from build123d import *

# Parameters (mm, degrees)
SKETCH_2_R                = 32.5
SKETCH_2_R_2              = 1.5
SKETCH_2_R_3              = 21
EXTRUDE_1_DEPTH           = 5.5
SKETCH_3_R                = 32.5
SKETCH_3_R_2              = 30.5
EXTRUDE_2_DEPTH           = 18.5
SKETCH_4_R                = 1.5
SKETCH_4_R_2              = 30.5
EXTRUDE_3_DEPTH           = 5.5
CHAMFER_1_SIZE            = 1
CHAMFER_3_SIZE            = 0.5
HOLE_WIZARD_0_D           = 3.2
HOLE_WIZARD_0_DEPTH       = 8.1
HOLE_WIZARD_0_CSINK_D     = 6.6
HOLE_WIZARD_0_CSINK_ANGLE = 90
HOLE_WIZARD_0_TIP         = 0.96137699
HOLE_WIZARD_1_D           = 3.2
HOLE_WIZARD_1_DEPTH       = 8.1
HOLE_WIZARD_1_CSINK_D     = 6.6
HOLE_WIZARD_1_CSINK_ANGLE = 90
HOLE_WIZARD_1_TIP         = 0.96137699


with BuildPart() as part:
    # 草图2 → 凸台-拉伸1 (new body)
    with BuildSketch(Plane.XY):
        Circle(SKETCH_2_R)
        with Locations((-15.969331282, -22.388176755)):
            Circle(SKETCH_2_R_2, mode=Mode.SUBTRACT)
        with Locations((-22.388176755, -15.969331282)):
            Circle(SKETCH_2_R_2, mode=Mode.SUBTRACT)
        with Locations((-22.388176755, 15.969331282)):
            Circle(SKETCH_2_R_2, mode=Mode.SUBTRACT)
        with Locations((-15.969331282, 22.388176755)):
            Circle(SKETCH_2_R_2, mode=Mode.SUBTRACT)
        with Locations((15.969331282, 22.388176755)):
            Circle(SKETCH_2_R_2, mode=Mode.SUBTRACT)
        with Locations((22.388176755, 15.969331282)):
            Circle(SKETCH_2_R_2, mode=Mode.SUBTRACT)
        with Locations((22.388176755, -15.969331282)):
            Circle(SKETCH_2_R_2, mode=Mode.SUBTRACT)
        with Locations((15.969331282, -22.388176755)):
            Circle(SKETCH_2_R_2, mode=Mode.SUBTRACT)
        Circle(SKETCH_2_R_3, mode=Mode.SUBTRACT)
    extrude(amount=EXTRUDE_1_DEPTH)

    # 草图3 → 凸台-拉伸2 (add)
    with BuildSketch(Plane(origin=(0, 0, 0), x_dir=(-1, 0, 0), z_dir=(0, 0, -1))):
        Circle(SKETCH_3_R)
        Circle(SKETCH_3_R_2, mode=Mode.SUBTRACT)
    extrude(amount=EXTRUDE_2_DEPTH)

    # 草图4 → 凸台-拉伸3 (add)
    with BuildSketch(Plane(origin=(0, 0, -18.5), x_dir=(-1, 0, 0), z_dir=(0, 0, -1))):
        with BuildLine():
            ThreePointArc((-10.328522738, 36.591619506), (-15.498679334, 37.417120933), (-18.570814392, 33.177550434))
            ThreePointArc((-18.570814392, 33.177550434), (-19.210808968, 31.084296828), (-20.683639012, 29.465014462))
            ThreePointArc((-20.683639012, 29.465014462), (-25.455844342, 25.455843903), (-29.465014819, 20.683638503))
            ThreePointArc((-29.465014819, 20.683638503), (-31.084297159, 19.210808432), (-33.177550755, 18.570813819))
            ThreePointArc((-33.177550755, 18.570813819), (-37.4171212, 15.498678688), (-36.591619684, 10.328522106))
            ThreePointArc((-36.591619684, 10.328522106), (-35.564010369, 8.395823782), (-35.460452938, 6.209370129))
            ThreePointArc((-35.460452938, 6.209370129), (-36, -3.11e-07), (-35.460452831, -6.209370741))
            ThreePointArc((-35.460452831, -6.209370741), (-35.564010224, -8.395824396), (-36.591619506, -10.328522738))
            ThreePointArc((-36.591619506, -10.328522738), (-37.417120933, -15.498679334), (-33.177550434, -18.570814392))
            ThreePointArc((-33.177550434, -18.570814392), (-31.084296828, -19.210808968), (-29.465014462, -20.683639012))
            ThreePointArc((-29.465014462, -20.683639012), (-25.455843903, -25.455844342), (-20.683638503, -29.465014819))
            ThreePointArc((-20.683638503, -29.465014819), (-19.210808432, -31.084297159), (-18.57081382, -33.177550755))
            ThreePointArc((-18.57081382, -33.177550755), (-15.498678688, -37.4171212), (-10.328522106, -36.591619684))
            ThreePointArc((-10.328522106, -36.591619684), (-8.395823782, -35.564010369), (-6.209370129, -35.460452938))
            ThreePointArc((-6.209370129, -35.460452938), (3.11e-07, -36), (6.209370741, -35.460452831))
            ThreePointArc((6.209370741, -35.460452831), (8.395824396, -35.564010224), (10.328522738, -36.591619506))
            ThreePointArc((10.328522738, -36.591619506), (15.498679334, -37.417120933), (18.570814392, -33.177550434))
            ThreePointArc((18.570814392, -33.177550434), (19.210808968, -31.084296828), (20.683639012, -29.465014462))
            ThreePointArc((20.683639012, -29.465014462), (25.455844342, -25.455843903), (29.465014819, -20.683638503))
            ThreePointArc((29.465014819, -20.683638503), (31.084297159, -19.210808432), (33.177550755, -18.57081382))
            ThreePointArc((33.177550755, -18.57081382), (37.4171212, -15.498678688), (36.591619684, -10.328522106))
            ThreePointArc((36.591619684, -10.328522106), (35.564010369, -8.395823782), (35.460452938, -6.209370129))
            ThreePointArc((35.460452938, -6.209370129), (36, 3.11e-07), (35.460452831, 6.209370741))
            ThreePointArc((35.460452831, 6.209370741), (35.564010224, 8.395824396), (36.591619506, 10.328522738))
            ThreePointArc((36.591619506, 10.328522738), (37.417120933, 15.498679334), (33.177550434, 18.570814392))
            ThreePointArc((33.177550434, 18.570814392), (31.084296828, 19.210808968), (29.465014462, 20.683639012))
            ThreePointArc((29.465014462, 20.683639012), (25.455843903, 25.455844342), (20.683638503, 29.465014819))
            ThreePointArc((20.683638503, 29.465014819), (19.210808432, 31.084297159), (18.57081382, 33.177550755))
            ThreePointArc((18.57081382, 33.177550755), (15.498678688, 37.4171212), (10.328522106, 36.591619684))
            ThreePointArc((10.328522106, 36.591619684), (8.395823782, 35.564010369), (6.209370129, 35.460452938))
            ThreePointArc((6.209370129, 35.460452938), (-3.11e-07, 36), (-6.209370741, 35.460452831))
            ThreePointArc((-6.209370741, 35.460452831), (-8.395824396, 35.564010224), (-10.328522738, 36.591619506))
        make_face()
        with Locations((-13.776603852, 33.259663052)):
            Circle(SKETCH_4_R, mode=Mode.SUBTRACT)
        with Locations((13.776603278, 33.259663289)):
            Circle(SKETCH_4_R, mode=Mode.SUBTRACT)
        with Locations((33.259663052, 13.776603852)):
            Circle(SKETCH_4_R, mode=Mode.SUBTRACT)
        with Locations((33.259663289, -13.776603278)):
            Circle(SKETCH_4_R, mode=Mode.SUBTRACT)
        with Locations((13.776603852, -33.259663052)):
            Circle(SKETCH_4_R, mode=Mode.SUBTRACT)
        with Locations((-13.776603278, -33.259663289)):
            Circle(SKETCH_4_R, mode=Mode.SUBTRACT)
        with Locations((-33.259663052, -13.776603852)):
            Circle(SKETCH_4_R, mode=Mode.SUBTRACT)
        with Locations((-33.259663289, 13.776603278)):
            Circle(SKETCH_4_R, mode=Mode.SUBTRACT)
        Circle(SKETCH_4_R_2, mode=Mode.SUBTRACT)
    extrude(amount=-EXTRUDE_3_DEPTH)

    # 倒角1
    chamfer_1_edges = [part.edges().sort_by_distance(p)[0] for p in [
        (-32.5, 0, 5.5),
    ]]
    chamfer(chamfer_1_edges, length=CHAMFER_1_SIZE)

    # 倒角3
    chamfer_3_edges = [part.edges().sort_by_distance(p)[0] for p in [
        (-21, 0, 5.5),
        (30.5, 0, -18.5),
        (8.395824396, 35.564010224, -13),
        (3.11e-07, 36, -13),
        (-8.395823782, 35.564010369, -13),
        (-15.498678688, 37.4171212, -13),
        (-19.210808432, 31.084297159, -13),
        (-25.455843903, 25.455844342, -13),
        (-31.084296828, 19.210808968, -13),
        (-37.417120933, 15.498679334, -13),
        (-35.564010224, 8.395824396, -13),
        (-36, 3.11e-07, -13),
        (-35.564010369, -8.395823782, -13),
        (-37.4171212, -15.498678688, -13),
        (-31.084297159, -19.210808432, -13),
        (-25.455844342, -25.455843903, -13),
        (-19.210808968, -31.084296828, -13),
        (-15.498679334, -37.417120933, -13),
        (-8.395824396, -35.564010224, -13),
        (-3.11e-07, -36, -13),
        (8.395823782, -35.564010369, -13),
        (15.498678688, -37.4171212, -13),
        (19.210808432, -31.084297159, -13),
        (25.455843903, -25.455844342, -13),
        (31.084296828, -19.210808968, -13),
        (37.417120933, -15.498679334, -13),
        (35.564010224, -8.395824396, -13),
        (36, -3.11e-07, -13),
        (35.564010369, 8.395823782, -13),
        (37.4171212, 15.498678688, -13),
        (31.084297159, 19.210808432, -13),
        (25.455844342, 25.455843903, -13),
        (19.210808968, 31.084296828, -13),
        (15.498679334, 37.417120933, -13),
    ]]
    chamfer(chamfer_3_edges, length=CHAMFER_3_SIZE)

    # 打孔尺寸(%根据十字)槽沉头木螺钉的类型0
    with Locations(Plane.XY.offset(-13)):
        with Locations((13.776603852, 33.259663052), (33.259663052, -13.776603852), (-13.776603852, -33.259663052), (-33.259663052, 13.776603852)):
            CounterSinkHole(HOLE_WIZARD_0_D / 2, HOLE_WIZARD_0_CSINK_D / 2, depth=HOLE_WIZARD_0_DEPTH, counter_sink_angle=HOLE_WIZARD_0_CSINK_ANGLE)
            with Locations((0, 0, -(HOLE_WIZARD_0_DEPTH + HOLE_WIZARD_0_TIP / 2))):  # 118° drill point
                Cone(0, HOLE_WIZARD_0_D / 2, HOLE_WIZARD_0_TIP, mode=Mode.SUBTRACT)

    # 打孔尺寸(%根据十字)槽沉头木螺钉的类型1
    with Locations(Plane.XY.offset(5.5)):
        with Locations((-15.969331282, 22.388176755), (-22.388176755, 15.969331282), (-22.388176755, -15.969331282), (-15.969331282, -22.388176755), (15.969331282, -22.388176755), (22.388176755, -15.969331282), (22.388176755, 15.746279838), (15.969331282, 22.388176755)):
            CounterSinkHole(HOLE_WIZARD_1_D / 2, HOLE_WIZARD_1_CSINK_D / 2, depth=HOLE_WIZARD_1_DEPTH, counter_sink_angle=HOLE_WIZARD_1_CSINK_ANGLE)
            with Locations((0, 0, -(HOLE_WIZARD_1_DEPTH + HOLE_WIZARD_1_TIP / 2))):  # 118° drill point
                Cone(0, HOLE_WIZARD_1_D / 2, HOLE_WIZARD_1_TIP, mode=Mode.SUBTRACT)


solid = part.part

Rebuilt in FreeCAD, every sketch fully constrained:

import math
import FreeCAD as App
import Part
import Sketcher
from FreeCAD import Vector


def edges_at(feature, points):
    """Names of the edges that pass closest to the given points."""
    edges = feature.Shape.Edges
    near = lambda p: min(range(len(edges)), key=lambda i: edges[i].distToShape(Part.Vertex(*p))[0])
    return sorted({f"Edge{near(p) + 1}" for p in points})

doc = App.newDocument("Part")
body = doc.addObject("PartDesign::Body", "Body")

sketch1 = doc.addObject("Sketcher::SketchObject", "Sketch")
body.addObject(sketch1)
sketch1.AttachmentSupport = (doc.XY_Plane, [""])
sketch1.MapMode = "FlatFace"
sketch1.addGeometry([
    Part.Circle(Vector(0, 0, 0), Vector(0, 0, 1), 32.5),
    Part.Circle(Vector(-16, -22.4, 0), Vector(0, 0, 1), 1.5),
    Part.Circle(Vector(-22.4, -16, 0), Vector(0, 0, 1), 1.5),
    Part.Circle(Vector(0, 0, 0), Vector(0, 0, 1), 21),
    Part.Circle(Vector(16, -22.4, 0), Vector(0, 0, 1), 1.5),
    Part.Circle(Vector(22.4, -16, 0), Vector(0, 0, 1), 1.5),
    Part.Circle(Vector(-22.4, 16, 0), Vector(0, 0, 1), 1.5),
    Part.Circle(Vector(-16, 22.4, 0), Vector(0, 0, 1), 1.5),
    Part.Circle(Vector(22.4, 16, 0), Vector(0, 0, 1), 1.5),
    Part.Circle(Vector(16, 22.4, 0), Vector(0, 0, 1), 1.5),
], False)
sketch1.addConstraint([
    Sketcher.Constraint("Coincident", 0, 3, -1, 1),
    Sketcher.Constraint("Coincident", 3, 3, -1, 1),
    Sketcher.Constraint("Equal", 1, 2),
    Sketcher.Constraint("Equal", 2, 4),
    Sketcher.Constraint("Equal", 4, 5),
    Sketcher.Constraint("Equal", 5, 6),
    Sketcher.Constraint("Equal", 6, 7),
    Sketcher.Constraint("Equal", 7, 8),
    Sketcher.Constraint("Equal", 8, 9),
    Sketcher.Constraint("Symmetric", 5, 3, 6, 3, -1, 1),
    Sketcher.Constraint("Symmetric", 4, 3, 7, 3, -1, 1),
    Sketcher.Constraint("Symmetric", 2, 3, 8, 3, -1, 1),
    Sketcher.Constraint("Symmetric", 1, 3, 9, 3, -1, 1),
    Sketcher.Constraint("Symmetric", 1, 3, 4, 3, -2),
    Sketcher.Constraint("Symmetric", 2, 3, 5, 3, -2),
    Sketcher.Constraint("Diameter", 0, 65.0),
    Sketcher.Constraint("Diameter", 1, 3.0),
    Sketcher.Constraint("Diameter", 3, 42.0),
    Sketcher.Constraint("DistanceX", 1, 3, -1, 1, 15.969331),
    Sketcher.Constraint("DistanceY", 2, 3, -1, 1, 15.969331),
    Sketcher.Constraint("DistanceX", 2, 3, 4, 3, 38.357508),
    Sketcher.Constraint("DistanceY", 1, 3, 6, 3, 38.357508),
])
pad1 = doc.addObject("PartDesign::Pad", "Pad")
body.addObject(pad1)
pad1.Profile = sketch1
pad1.Length = 5.5

sketch2 = doc.addObject("Sketcher::SketchObject", "Sketch001")
body.addObject(sketch2)
sketch2.AttachmentSupport = (doc.XY_Plane, [""])
sketch2.MapMode = "FlatFace"
sketch2.addGeometry([
    Part.Circle(Vector(0, 0, 0), Vector(0, 0, 1), 32),
    Part.Circle(Vector(0, 0, 0), Vector(0, 0, 1), 30),
], False)
sketch2.addConstraint([
    Sketcher.Constraint("Coincident", 0, 3, -1, 1),
    Sketcher.Constraint("Coincident", 1, 3, -1, 1),
    Sketcher.Constraint("Diameter", 0, 65.0),
    Sketcher.Constraint("Diameter", 1, 61.0),
])
pad2 = doc.addObject("PartDesign::Pad", "Pad001")
body.addObject(pad2)
pad2.Profile = sketch2
pad2.Length = 18.5
pad2.Reversed = True

sketch3 = doc.addObject("Sketcher::SketchObject", "Sketch002")
body.addObject(sketch3)
sketch3.AttachmentSupport = (doc.XY_Plane, [""])
sketch3.MapMode = "FlatFace"
sketch3.AttachmentOffset = App.Placement(Vector(0, 0, -18.5), App.Rotation())
sketch3.addGeometry([
    Part.ArcOfCircle(Part.Circle(Vector(13.6, 32.8, 0), Vector(0, 0, 1), 5), math.radians(4), math.radians(131)),
    Part.ArcOfCircle(Part.Circle(Vector(23.6, 33.6, 0), Vector(0, 0, 1), 5), math.radians(-176), math.radians(-125)),
    Part.ArcOfCircle(Part.Circle(Vector(0, 0, 0), Vector(0, 0, 1), 36), math.radians(35.07), math.radians(54.93)),
    Part.ArcOfCircle(Part.Circle(Vector(33.6, 23.6, 0), Vector(0, 0, 1), 5), math.radians(-145), math.radians(-94)),
    Part.ArcOfCircle(Part.Circle(Vector(32.8, 13.6, 0), Vector(0, 0, 1), 5), math.radians(-41), math.radians(86)),
    Part.ArcOfCircle(Part.Circle(Vector(40.4, 7.1, 0), Vector(0, 0, 1), 5), math.radians(139), math.radians(190)),
    Part.ArcOfCircle(Part.Circle(Vector(0, 0, 0), Vector(0, 0, 1), 36), math.radians(-9.93), math.radians(9.93)),
    Part.ArcOfCircle(Part.Circle(Vector(40.4, -7.1, 0), Vector(0, 0, 1), 5), math.radians(170), math.radians(221)),
    Part.ArcOfCircle(Part.Circle(Vector(32.8, -13.6, 0), Vector(0, 0, 1), 5), math.radians(-86), math.radians(41)),
    Part.ArcOfCircle(Part.Circle(Vector(33.6, -23.6, 0), Vector(0, 0, 1), 5), math.radians(94), math.radians(145)),
    Part.ArcOfCircle(Part.Circle(Vector(0, 0, 0), Vector(0, 0, 1), 36), math.radians(-54.93), math.radians(-35.07)),
    Part.ArcOfCircle(Part.Circle(Vector(23.6, -33.6, 0), Vector(0, 0, 1), 5), math.radians(125), math.radians(176)),
    Part.ArcOfCircle(Part.Circle(Vector(13.6, -32.8, 0), Vector(0, 0, 1), 5), math.radians(-131), math.radians(-4)),
    Part.ArcOfCircle(Part.Circle(Vector(7.1, -40.4, 0), Vector(0, 0, 1), 5), math.radians(49), math.radians(100)),
    Part.ArcOfCircle(Part.Circle(Vector(0, 0, 0), Vector(0, 0, 1), 36), math.radians(-99.93), math.radians(-80.07)),
    Part.ArcOfCircle(Part.Circle(Vector(-7.1, -40.4, 0), Vector(0, 0, 1), 5), math.radians(80), math.radians(131)),
    Part.ArcOfCircle(Part.Circle(Vector(-13.6, -32.8, 0), Vector(0, 0, 1), 5), math.radians(-176), math.radians(-49)),
    Part.ArcOfCircle(Part.Circle(Vector(-23.6, -33.6, 0), Vector(0, 0, 1), 5), math.radians(4), math.radians(55)),
    Part.ArcOfCircle(Part.Circle(Vector(0, 0, 0), Vector(0, 0, 1), 36), math.radians(-144.93), math.radians(-125.07)),
    Part.ArcOfCircle(Part.Circle(Vector(-33.6, -23.6, 0), Vector(0, 0, 1), 5), math.radians(35), math.radians(86)),
    Part.ArcOfCircle(Part.Circle(Vector(-32.8, -13.6, 0), Vector(0, 0, 1), 5), math.radians(139), math.radians(266)),
    Part.ArcOfCircle(Part.Circle(Vector(-40.4, -7.1, 0), Vector(0, 0, 1), 5), math.radians(-41), math.radians(10)),
    Part.ArcOfCircle(Part.Circle(Vector(0, 0, 0), Vector(0, 0, 1), 36), math.radians(170.07), math.radians(189.93)),
    Part.ArcOfCircle(Part.Circle(Vector(-40.4, 7.1, 0), Vector(0, 0, 1), 5), math.radians(-10), math.radians(41)),
    Part.ArcOfCircle(Part.Circle(Vector(-32.8, 13.6, 0), Vector(0, 0, 1), 5), math.radians(94), math.radians(221)),
    Part.ArcOfCircle(Part.Circle(Vector(-33.6, 23.6, 0), Vector(0, 0, 1), 5), math.radians(-86), math.radians(-35)),
    Part.ArcOfCircle(Part.Circle(Vector(0, 0, 0), Vector(0, 0, 1), 36), math.radians(125.07), math.radians(144.93)),
    Part.ArcOfCircle(Part.Circle(Vector(-23.6, 33.6, 0), Vector(0, 0, 1), 5), math.radians(-55), math.radians(-4)),
    Part.ArcOfCircle(Part.Circle(Vector(-13.6, 32.8, 0), Vector(0, 0, 1), 5), math.radians(49), math.radians(176)),
    Part.ArcOfCircle(Part.Circle(Vector(-7.1, 40.4, 0), Vector(0, 0, 1), 5), math.radians(-131), math.radians(-80)),
    Part.ArcOfCircle(Part.Circle(Vector(0, 0, 0), Vector(0, 0, 1), 36), math.radians(80.07), math.radians(99.93)),
    Part.ArcOfCircle(Part.Circle(Vector(7.1, 40.4, 0), Vector(0, 0, 1), 5), math.radians(-100), math.radians(-49)),
    Part.Circle(Vector(13.8, -33.3, 0), Vector(0, 0, 1), 1.5),
    Part.Circle(Vector(33.3, -13.8, 0), Vector(0, 0, 1), 1.5),
    Part.Circle(Vector(-13.8, -33.3, 0), Vector(0, 0, 1), 1.5),
    Part.Circle(Vector(-33.3, -13.8, 0), Vector(0, 0, 1), 1.5),
    Part.Circle(Vector(33.3, 13.8, 0), Vector(0, 0, 1), 1.5),
    Part.Circle(Vector(13.8, 33.3, 0), Vector(0, 0, 1), 1.5),
    Part.Circle(Vector(0, 0, 0), Vector(0, 0, 1), 30.5),
    Part.Circle(Vector(-33.3, 13.8, 0), Vector(0, 0, 1), 1.5),
    Part.Circle(Vector(-13.8, 33.3, 0), Vector(0, 0, 1), 1.5),
], False)
sketch3.addConstraint([
    Sketcher.Constraint("Tangent", 0, 1, 1, 1),
    Sketcher.Constraint("Tangent", 1, 2, 2, 2),
    Sketcher.Constraint("Tangent", 2, 1, 3, 1),
    Sketcher.Constraint("Tangent", 3, 2, 4, 2),
    Sketcher.Constraint("Tangent", 4, 1, 5, 1),
    Sketcher.Constraint("Tangent", 5, 2, 6, 2),
    Sketcher.Constraint("Tangent", 6, 1, 7, 1),
    Sketcher.Constraint("Tangent", 7, 2, 8, 2),
    Sketcher.Constraint("Tangent", 8, 1, 9, 1),
    Sketcher.Constraint("Tangent", 9, 2, 10, 2),
    Sketcher.Constraint("Tangent", 10, 1, 11, 1),
    Sketcher.Constraint("Tangent", 11, 2, 12, 2),
    Sketcher.Constraint("Tangent", 12, 1, 13, 1),
    Sketcher.Constraint("Tangent", 13, 2, 14, 2),
    Sketcher.Constraint("Tangent", 14, 1, 15, 1),
    Sketcher.Constraint("Tangent", 15, 2, 16, 2),
    Sketcher.Constraint("Tangent", 16, 1, 17, 1),
    Sketcher.Constraint("Tangent", 17, 2, 18, 2),
    Sketcher.Constraint("Tangent", 18, 1, 19, 1),
    Sketcher.Constraint("Tangent", 19, 2, 20, 2),
    Sketcher.Constraint("Tangent", 20, 1, 21, 1),
    Sketcher.Constraint("Tangent", 21, 2, 22, 2),
    Sketcher.Constraint("Tangent", 22, 1, 23, 1),
    Sketcher.Constraint("Tangent", 23, 2, 24, 2),
    Sketcher.Constraint("Tangent", 24, 1, 25, 1),
    Sketcher.Constraint("Tangent", 25, 2, 26, 2),
    Sketcher.Constraint("Tangent", 26, 1, 27, 1),
    Sketcher.Constraint("Tangent", 27, 2, 28, 2),
    Sketcher.Constraint("Tangent", 28, 1, 29, 1),
    Sketcher.Constraint("Tangent", 29, 2, 30, 2),
    Sketcher.Constraint("Tangent", 30, 1, 31, 1),
    Sketcher.Constraint("Tangent", 31, 2, 0, 2),
    Sketcher.Constraint("Coincident", 2, 3, -1, 1),
    Sketcher.Constraint("Coincident", 6, 3, -1, 1),
    Sketcher.Constraint("Coincident", 10, 3, -1, 1),
    Sketcher.Constraint("Coincident", 14, 3, -1, 1),
    Sketcher.Constraint("Coincident", 18, 3, -1, 1),
    Sketcher.Constraint("Coincident", 22, 3, -1, 1),
    Sketcher.Constraint("Coincident", 26, 3, -1, 1),
    Sketcher.Constraint("Coincident", 30, 3, -1, 1),
    Sketcher.Constraint("Coincident", 38, 3, -1, 1),
    Sketcher.Constraint("Equal", 0, 1),
    Sketcher.Constraint("Equal", 1, 3),
    Sketcher.Constraint("Equal", 3, 4),
    Sketcher.Constraint("Equal", 4, 5),
    Sketcher.Constraint("Equal", 2, 6),
    Sketcher.Constraint("Equal", 5, 7),
    Sketcher.Constraint("Equal", 7, 8),
    Sketcher.Constraint("Equal", 8, 9),
    Sketcher.Constraint("Equal", 6, 10),
    Sketcher.Constraint("Equal", 9, 11),
    Sketcher.Constraint("Equal", 11, 12),
    Sketcher.Constraint("Equal", 12, 13),
    Sketcher.Constraint("Equal", 10, 14),
    Sketcher.Constraint("Equal", 13, 15),
    Sketcher.Constraint("Equal", 15, 16),
    Sketcher.Constraint("Equal", 16, 17),
    Sketcher.Constraint("Equal", 14, 18),
    Sketcher.Constraint("Equal", 17, 19),
    Sketcher.Constraint("Equal", 19, 20),
    Sketcher.Constraint("Equal", 20, 21),
    Sketcher.Constraint("Equal", 18, 22),
    Sketcher.Constraint("Equal", 21, 23),
    Sketcher.Constraint("Equal", 23, 24),
    Sketcher.Constraint("Equal", 24, 25),
    Sketcher.Constraint("Equal", 22, 26),
    Sketcher.Constraint("Equal", 25, 27),
    Sketcher.Constraint("Equal", 27, 28),
    Sketcher.Constraint("Equal", 28, 29),
    Sketcher.Constraint("Equal", 26, 30),
    Sketcher.Constraint("Equal", 29, 31),
    Sketcher.Constraint("Equal", 32, 33),
    Sketcher.Constraint("Equal", 33, 34),
    Sketcher.Constraint("Equal", 34, 35),
    Sketcher.Constraint("Equal", 35, 36),
    Sketcher.Constraint("Equal", 36, 37),
    Sketcher.Constraint("Equal", 37, 39),
    Sketcher.Constraint("Equal", 39, 40),
    Sketcher.Constraint("Symmetric", 0, 3, 16, 3, -1, 1),
    Sketcher.Constraint("Symmetric", 4, 3, 20, 3, -1, 1),
    Sketcher.Constraint("Symmetric", 8, 3, 24, 3, -1, 1),
    Sketcher.Constraint("Symmetric", 12, 3, 28, 3, -1, 1),
    Sketcher.Constraint("Symmetric", 35, 3, 36, 3, -1, 1),
    Sketcher.Constraint("Symmetric", 34, 3, 37, 3, -1, 1),
    Sketcher.Constraint("Symmetric", 33, 3, 39, 3, -1, 1),
    Sketcher.Constraint("Symmetric", 32, 3, 40, 3, -1, 1),
    Sketcher.Constraint("Symmetric", 12, 3, 16, 3, -2),
    Sketcher.Constraint("Symmetric", 8, 3, 20, 3, -2),
    Sketcher.Constraint("Symmetric", 32, 3, 34, 3, -2),
    Sketcher.Constraint("Symmetric", 33, 3, 35, 3, -2),
    Sketcher.Constraint("Diameter", 32, 3.0),
    Sketcher.Constraint("Diameter", 38, 61.0),
    Sketcher.Constraint("Radius", 0, 5.0),
    Sketcher.Constraint("Radius", 2, 36.0),
    Sketcher.Constraint("DistanceY", -1, 1, 4, 3, 13.585262),
    Sketcher.Constraint("DistanceX", -1, 1, 12, 3, 13.585262),
    Sketcher.Constraint("DistanceY", -1, 1, 0, 1, 33.17755),
    Sketcher.Constraint("DistanceX", -1, 1, 3, 2, 33.177551),
    Sketcher.Constraint("DistanceX", -1, 1, 32, 3, 13.776603),
    Sketcher.Constraint("DistanceY", 32, 3, -1, 1, 33.259663),
    Sketcher.Constraint("DistanceX", -1, 1, 33, 3, 33.259663),
    Sketcher.Constraint("DistanceY", 33, 3, -1, 1, 13.776604),
])
pad3 = doc.addObject("PartDesign::Pad", "Pad002")
body.addObject(pad3)
pad3.Profile = sketch3
pad3.Length = 5.5
doc.recompute()

chamfer = doc.addObject("PartDesign::Chamfer", "Chamfer")
body.addObject(chamfer)
chamfer.Base = (pad3, edges_at(pad3, [(-32.5, 0, 5.5)]))
chamfer.Size = 1
doc.recompute()

chamfer2 = doc.addObject("PartDesign::Chamfer", "Chamfer001")
body.addObject(chamfer2)
chamfer2.Base = (chamfer, edges_at(chamfer, [
    (-21, 0, 5.5),
    (30.5, 0, -18.5),
    (8.396, 35.564, -13),
    (0, 36, -13),
    (-8.396, 35.564, -13),
    (-15.499, 37.417, -13),
    (-19.211, 31.084, -13),
    (-25.456, 25.456, -13),
    (-31.084, 19.211, -13),
    (-37.417, 15.499, -13),
    (-35.564, 8.396, -13),
    (-36, 0, -13),
    (-35.564, -8.396, -13),
    (-37.417, -15.499, -13),
    (-31.084, -19.211, -13),
    (-25.456, -25.456, -13),
    (-19.211, -31.084, -13),
    (-15.499, -37.417, -13),
    (-8.396, -35.564, -13),
    (0, -36, -13),
    (8.396, -35.564, -13),
    (15.499, -37.417, -13),
    (19.211, -31.084, -13),
    (25.456, -25.456, -13),
    (31.084, -19.211, -13),
    (37.417, -15.499, -13),
    (35.564, -8.396, -13),
    (36, 0, -13),
    (35.564, 8.396, -13),
    (37.417, 15.499, -13),
    (31.084, 19.211, -13),
    (25.456, 25.456, -13),
    (19.211, 31.084, -13),
    (15.499, 37.417, -13),
]))
chamfer2.Size = 0.5

sketch4 = doc.addObject("Sketcher::SketchObject", "Sketch003")
body.addObject(sketch4)
sketch4.AttachmentSupport = (doc.XY_Plane, [""])
sketch4.MapMode = "FlatFace"
sketch4.AttachmentOffset = App.Placement(Vector(0, 0, -13), App.Rotation())
sketch4.addGeometry([
    Part.Circle(Vector(13.8, 33.3, 0), Vector(0, 0, 1), 1.6),
    Part.Circle(Vector(33.3, -13.8, 0), Vector(0, 0, 1), 1.6),
    Part.Circle(Vector(-13.8, -33.3, 0), Vector(0, 0, 1), 1.6),
    Part.Circle(Vector(-33.3, 13.8, 0), Vector(0, 0, 1), 1.6),
], False)
sketch4.addConstraint([
    Sketcher.Constraint("Equal", 0, 1),
    Sketcher.Constraint("Equal", 1, 2),
    Sketcher.Constraint("Equal", 2, 3),
    Sketcher.Constraint("Symmetric", 0, 3, 2, 3, -1, 1),
    Sketcher.Constraint("Symmetric", 1, 3, 3, 3, -1, 1),
    Sketcher.Constraint("Diameter", 0, 3.2),
    Sketcher.Constraint("DistanceX", 0, 3, 1, 3, 19.483059),
    Sketcher.Constraint("DistanceY", 2, 3, 1, 3, 19.483059),
    Sketcher.Constraint("DistanceX", -1, 1, 0, 3, 13.776604),
    Sketcher.Constraint("DistanceY", -1, 1, 0, 3, 33.259663),
])
doc.recompute()
hole = doc.addObject("PartDesign::Hole", "Hole")
body.addObject(hole)
hole.Profile = sketch4
hole.ThreadType = "None"
hole.Diameter = 3.2
hole.DepthType = "Dimension"
hole.Depth = 8.1
hole.DrillPoint = "Angled"
hole.DrillPointAngle = 118
hole.HoleCutType = "Countersink"
hole.HoleCutDiameter = 6.6
hole.HoleCutCountersinkAngle = 90

sketch5 = doc.addObject("Sketcher::SketchObject", "Sketch004")
body.addObject(sketch5)
sketch5.AttachmentSupport = (doc.XY_Plane, [""])
sketch5.MapMode = "FlatFace"
sketch5.AttachmentOffset = App.Placement(Vector(0, 0, 5.5), App.Rotation())
sketch5.addGeometry([
    Part.Circle(Vector(-16, 22.4, 0), Vector(0, 0, 1), 1.6),
    Part.Circle(Vector(-22.4, 16, 0), Vector(0, 0, 1), 1.6),
    Part.Circle(Vector(-22.4, -16, 0), Vector(0, 0, 1), 1.6),
    Part.Circle(Vector(-16, -22.4, 0), Vector(0, 0, 1), 1.6),
    Part.Circle(Vector(16, -22.4, 0), Vector(0, 0, 1), 1.6),
    Part.Circle(Vector(22.4, -16, 0), Vector(0, 0, 1), 1.6),
    Part.Circle(Vector(22.4, 15.7, 0), Vector(0, 0, 1), 1.6),
    Part.Circle(Vector(16, 22.4, 0), Vector(0, 0, 1), 1.6),
], False)
sketch5.addConstraint([
    Sketcher.Constraint("Equal", 0, 1),
    Sketcher.Constraint("Equal", 1, 2),
    Sketcher.Constraint("Equal", 2, 3),
    Sketcher.Constraint("Equal", 3, 4),
    Sketcher.Constraint("Equal", 4, 5),
    Sketcher.Constraint("Equal", 5, 6),
    Sketcher.Constraint("Equal", 6, 7),
    Sketcher.Constraint("Symmetric", 0, 3, 4, 3, -1, 1),
    Sketcher.Constraint("Symmetric", 1, 3, 5, 3, -1, 1),
    Sketcher.Constraint("Symmetric", 3, 3, 7, 3, -1, 1),
    Sketcher.Constraint("Symmetric", 3, 3, 4, 3, -2),
    Sketcher.Constraint("Symmetric", 2, 3, 5, 3, -2),
    Sketcher.Constraint("Vertical", 5, 3, 6, 3),
    Sketcher.Constraint("Diameter", 0, 3.2),
    Sketcher.Constraint("DistanceX", 0, 3, -1, 1, 15.969331),
    Sketcher.Constraint("DistanceY", -1, 1, 1, 3, 15.969331),
    Sketcher.Constraint("DistanceY", -1, 1, 6, 3, 15.74628),
    Sketcher.Constraint("DistanceY", 2, 3, 0, 3, 38.357508),
    Sketcher.Constraint("DistanceX", 2, 3, 4, 3, 38.357508),
])
doc.recompute()
hole2 = doc.addObject("PartDesign::Hole", "Hole001")
body.addObject(hole2)
hole2.Profile = sketch5
hole2.ThreadType = "None"
hole2.Diameter = 3.2
hole2.DepthType = "Dimension"
hole2.Depth = 8.1
hole2.DrillPoint = "Angled"
hole2.DrillPointAngle = 118
hole2.HoleCutType = "Countersink"
hole2.HoleCutDiameter = 6.6
hole2.HoleCutCountersinkAngle = 90

doc.recompute()
